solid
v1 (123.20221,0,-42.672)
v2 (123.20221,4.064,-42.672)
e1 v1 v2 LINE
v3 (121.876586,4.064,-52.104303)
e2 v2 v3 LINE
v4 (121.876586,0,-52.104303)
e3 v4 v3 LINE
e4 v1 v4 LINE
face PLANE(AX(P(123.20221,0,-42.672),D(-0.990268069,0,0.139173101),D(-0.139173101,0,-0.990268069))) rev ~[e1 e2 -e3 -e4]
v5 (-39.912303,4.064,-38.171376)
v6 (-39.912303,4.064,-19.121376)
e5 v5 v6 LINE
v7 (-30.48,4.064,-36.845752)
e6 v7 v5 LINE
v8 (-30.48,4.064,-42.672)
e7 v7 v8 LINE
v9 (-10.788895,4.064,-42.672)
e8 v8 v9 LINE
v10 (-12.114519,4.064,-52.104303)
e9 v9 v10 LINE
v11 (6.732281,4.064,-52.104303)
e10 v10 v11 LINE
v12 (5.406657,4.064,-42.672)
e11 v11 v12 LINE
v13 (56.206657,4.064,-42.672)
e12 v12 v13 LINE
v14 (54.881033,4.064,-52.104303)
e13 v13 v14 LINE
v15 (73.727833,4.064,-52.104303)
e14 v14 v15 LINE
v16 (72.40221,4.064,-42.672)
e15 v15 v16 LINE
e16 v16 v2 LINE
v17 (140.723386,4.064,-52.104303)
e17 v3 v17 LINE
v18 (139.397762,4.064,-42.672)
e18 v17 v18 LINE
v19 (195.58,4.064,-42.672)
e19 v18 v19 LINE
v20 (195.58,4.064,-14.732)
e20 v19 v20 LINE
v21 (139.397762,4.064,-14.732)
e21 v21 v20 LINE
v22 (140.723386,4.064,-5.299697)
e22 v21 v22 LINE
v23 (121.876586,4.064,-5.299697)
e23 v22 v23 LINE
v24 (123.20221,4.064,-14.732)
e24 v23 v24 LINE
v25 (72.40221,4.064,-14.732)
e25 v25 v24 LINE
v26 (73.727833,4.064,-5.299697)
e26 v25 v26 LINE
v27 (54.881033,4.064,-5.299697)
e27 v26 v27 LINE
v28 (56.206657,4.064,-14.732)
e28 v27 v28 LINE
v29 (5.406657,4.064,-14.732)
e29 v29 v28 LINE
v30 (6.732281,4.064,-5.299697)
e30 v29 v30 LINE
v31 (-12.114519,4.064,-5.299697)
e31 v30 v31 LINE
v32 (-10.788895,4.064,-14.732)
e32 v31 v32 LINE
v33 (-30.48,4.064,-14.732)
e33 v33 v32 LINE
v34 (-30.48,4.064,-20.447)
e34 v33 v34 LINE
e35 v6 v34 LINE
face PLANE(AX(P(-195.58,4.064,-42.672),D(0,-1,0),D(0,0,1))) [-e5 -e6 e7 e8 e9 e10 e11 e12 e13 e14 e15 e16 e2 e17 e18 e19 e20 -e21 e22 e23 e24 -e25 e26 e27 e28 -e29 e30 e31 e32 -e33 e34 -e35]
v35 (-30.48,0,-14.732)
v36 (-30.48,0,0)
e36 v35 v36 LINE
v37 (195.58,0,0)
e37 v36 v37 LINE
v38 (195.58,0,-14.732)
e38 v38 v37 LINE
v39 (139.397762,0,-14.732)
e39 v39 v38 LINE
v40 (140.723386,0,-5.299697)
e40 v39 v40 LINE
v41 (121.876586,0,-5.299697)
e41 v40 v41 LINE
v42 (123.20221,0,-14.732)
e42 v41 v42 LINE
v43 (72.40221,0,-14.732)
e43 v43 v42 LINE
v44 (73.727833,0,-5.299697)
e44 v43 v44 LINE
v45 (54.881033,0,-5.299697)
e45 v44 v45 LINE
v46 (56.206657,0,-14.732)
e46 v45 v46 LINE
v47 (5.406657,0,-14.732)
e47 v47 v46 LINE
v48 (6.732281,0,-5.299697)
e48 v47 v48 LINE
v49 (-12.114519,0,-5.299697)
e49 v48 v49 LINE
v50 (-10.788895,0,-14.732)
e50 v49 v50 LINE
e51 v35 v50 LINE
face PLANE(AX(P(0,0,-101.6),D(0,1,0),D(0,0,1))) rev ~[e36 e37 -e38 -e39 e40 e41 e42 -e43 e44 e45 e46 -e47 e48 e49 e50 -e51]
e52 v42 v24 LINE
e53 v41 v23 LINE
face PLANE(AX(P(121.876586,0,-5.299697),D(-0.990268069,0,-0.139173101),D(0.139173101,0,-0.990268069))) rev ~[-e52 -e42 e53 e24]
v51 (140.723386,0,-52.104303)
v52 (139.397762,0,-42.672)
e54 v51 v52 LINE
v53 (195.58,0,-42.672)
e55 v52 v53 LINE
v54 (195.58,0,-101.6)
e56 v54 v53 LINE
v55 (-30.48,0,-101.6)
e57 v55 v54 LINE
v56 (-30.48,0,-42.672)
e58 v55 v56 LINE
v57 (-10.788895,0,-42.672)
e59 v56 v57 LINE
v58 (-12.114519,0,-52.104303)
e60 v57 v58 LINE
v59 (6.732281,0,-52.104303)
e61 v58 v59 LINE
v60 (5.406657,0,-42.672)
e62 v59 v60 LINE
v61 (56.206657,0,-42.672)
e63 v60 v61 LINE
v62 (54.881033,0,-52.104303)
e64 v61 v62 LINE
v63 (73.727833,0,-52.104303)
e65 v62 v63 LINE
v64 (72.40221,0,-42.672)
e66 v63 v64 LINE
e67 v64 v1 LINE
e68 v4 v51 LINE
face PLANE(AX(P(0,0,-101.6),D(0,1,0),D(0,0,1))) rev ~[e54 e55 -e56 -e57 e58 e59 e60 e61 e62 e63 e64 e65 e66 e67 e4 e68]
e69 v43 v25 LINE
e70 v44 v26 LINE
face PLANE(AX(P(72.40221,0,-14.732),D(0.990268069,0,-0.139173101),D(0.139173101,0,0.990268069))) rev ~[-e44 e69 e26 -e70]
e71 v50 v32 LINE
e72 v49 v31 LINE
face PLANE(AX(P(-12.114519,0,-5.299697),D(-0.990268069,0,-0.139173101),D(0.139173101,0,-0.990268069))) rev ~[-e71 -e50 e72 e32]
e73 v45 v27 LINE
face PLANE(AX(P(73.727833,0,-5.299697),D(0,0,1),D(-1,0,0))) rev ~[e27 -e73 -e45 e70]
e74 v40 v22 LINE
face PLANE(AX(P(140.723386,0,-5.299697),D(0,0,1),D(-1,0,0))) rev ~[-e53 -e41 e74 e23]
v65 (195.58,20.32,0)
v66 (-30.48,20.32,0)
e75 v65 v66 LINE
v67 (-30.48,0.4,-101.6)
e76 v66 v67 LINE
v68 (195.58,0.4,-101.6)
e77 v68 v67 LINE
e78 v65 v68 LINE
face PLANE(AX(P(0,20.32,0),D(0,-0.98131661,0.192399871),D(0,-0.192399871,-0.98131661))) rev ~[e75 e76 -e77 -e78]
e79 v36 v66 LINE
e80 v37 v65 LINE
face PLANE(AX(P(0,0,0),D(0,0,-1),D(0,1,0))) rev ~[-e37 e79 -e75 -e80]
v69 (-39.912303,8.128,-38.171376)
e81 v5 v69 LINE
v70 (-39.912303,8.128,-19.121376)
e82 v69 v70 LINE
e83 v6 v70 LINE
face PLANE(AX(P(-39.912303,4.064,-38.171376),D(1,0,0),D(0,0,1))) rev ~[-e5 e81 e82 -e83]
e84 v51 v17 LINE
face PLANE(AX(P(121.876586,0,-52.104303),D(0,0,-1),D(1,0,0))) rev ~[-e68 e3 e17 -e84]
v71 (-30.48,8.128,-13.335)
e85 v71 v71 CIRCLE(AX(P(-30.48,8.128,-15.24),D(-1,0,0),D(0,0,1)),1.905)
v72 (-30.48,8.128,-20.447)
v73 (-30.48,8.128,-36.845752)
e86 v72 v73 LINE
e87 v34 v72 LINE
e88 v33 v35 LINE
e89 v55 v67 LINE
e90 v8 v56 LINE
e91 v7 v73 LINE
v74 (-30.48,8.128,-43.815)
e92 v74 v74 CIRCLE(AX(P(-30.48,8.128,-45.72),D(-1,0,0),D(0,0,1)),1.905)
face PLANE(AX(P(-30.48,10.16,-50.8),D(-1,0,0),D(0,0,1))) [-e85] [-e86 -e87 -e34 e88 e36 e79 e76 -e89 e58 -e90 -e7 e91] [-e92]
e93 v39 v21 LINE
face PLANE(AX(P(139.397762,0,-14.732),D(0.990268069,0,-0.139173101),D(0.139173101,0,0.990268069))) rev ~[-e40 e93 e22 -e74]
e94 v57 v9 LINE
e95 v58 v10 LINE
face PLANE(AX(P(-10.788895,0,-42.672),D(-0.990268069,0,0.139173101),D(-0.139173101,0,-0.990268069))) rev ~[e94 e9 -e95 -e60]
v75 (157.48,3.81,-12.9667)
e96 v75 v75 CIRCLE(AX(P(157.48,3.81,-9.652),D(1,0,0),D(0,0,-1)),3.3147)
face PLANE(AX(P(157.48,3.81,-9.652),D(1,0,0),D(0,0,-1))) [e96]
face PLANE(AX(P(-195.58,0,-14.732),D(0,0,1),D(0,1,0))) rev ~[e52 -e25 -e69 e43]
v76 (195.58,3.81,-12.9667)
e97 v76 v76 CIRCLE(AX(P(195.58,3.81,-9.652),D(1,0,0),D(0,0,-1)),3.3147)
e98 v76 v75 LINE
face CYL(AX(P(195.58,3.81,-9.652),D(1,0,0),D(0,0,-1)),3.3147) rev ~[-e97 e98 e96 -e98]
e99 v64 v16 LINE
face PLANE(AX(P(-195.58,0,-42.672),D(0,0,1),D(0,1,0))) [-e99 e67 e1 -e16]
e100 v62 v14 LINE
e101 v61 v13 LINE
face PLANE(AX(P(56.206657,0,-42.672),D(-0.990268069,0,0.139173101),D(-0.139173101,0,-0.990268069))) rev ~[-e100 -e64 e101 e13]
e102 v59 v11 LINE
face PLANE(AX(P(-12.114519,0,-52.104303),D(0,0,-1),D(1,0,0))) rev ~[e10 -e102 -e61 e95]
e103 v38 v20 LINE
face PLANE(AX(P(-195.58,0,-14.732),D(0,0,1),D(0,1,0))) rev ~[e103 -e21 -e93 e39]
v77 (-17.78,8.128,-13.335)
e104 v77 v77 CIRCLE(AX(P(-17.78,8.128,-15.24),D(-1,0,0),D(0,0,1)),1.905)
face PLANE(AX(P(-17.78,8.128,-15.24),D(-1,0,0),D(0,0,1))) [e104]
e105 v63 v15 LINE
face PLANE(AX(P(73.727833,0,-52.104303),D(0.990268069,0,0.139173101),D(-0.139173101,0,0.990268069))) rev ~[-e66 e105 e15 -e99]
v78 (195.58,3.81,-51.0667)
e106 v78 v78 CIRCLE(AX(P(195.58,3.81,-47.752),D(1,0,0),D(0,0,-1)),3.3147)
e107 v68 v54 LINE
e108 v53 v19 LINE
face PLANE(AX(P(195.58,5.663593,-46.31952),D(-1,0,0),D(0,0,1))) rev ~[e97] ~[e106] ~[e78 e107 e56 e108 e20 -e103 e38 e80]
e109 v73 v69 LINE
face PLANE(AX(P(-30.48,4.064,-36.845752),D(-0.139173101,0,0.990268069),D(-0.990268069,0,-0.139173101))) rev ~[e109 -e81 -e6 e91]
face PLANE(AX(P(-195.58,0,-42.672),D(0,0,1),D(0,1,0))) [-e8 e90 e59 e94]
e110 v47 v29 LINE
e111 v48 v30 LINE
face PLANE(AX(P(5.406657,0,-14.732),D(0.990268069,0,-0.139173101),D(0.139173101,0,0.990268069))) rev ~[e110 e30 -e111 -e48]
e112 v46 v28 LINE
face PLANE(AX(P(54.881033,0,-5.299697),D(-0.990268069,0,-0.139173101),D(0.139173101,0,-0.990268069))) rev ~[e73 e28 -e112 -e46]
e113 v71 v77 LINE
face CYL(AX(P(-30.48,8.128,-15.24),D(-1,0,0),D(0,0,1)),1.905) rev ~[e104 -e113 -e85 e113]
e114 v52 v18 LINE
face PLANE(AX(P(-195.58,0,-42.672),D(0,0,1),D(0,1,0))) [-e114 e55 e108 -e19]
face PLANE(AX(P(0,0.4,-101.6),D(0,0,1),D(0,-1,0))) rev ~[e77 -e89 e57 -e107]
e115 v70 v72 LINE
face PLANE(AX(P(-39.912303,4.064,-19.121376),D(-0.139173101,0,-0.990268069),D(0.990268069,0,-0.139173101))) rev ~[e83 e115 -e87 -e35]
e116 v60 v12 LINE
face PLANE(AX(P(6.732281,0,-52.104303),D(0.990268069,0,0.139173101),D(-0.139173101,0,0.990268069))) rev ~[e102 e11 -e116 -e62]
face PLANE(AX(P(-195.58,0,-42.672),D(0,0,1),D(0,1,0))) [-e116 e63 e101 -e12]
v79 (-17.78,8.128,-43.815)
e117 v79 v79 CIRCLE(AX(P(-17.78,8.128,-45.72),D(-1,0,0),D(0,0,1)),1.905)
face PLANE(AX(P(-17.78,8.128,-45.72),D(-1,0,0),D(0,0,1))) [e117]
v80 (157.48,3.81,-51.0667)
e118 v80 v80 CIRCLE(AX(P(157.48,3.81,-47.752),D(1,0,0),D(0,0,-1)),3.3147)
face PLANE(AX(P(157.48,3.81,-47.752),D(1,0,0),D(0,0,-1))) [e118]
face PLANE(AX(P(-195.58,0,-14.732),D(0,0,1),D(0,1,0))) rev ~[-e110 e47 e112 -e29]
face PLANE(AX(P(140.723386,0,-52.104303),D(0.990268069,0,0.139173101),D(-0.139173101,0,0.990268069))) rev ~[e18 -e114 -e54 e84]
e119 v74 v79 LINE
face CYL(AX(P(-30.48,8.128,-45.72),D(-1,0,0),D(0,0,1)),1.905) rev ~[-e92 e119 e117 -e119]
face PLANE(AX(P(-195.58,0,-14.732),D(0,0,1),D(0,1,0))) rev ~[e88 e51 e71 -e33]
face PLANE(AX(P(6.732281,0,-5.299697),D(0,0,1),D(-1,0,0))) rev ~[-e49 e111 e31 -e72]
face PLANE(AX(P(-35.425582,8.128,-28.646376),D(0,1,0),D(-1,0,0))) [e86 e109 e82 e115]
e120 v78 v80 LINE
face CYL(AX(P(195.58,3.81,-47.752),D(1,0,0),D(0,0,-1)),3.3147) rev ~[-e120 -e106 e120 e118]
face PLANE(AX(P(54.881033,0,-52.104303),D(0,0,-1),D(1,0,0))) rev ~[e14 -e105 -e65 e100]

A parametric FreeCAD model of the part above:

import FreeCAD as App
import Part
import Sketcher

V = App.Vector
Q = App.Units.Quantity


def add_polygon(sketch, points):
    """Adds a closed chain of lines whose ends are joined by coincident constraints."""
    first, n = sketch.GeometryCount, len(points)
    for a, b in zip(points, points[1:] + points[:1]):
        sketch.addGeometry(Part.LineSegment(App.Vector(*a, 0), App.Vector(*b, 0)), False)
    for i in range(n):
        sketch.addConstraint(Sketcher.Constraint("Coincident", first + i, 2, first + (i + 1) % n, 1))

doc = App.newDocument("Part")
body = doc.addObject("PartDesign::Body", "Body")

sketch1 = body.newObject("Sketcher::SketchObject", "Sketch")
sketch1.AttachmentSupport = (doc.getObject("YZ_Plane"), [""])
sketch1.MapMode = "FlatFace"
add_polygon(sketch1, [(20.32, 0), (0, 0), (0, -101.6), (0.4, -101.6)])
sketch1.addConstraint([
    Sketcher.Constraint("Horizontal", 0),
    Sketcher.Constraint("Vertical", 1),
    Sketcher.Constraint("Horizontal", 2),
    Sketcher.Constraint("Coincident", 0, 2, -1, 1),
    Sketcher.Constraint("DistanceY", 1, 2, 1, 1, Q("4 in")),
    Sketcher.Constraint("DistanceX", 0, 2, 0, 1, Q("0.8 in")),
    Sketcher.Constraint("DistanceX", 2, 1, 2, 2, 0.4),
])
pad1 = body.newObject("PartDesign::Pad", "Pad")
pad1.Profile = sketch1
pad1.Length = Q("15.4 in")
pad1.Midplane = True

sketch2 = body.newObject("Sketcher::SketchObject", "Sketch001")
sketch2.AttachmentSupport = (doc.getObject("YZ_Plane"), [""])
sketch2.MapMode = "FlatFace"
sketch2.AttachmentOffset = App.Placement(V(0, 0, 7.7 * 25.4), App.Rotation())
sketch2.addGeometry([
    Part.Circle(V(3.8, -9.7, 0), V(0, 0, 1), 3.3),
    Part.Circle(V(3.8, -47.8, 0), V(0, 0, 1), 3.3),
], False)
sketch2.addConstraint([
    Sketcher.Constraint("Equal", 0, 1),
    Sketcher.Constraint("Vertical", 0, 3, 1, 3),
    Sketcher.Constraint("Diameter", 0, Q("0.261 in")),
    Sketcher.Constraint("DistanceY", 1, 3, 0, 3, Q("1.5 in")),
    Sketcher.Constraint("DistanceX", -1, 1, 0, 3, Q("0.15 in")),
    Sketcher.Constraint("DistanceY", 0, 3, -1, 1, Q("0.38 in")),
])
pocket1 = body.newObject("PartDesign::Pocket", "Pocket")
pocket1.Profile = sketch2
pocket1.Length = Q("1.5 in")
doc.recompute()

mirrored = body.newObject("PartDesign::Mirrored", "Mirrored")
mirrored.Originals = [pocket1]
mirrored.MirrorPlane = (doc.getObject("YZ_Plane"), [""])
body.Tip = mirrored

sketch3 = body.newObject("Sketcher::SketchObject", "Sketch002")
sketch3.AttachmentSupport = (doc.getObject("YZ_Plane"), [""])
sketch3.MapMode = "FlatFace"
sketch3.AttachmentOffset = App.Placement(V(0, 0, -7.7 * 25.4), App.Rotation())
add_polygon(sketch3, [(4.1, -42.7), (0, -42.7), (0, -14.7), (4.1, -14.7)])
sketch3.addConstraint([
    Sketcher.Constraint("Horizontal", 0),
    Sketcher.Constraint("Vertical", 1),
    Sketcher.Constraint("Horizontal", 2),
    Sketcher.Constraint("Vertical", 3),
    Sketcher.Constraint("PointOnObject", 0, 2, -2),
    Sketcher.Constraint("DistanceY", 1, 1, 1, 2, Q("1.1 in")),
    Sketcher.Constraint("DistanceX", 0, 2, 0, 1, Q("0.16 in")),
    Sketcher.Constraint("DistanceY", 0, 2, -1, 1, Q("1.68 in")),
])
pocket2 = body.newObject("PartDesign::Pocket", "Pocket001")
pocket2.Profile = sketch3
pocket2.Type = "ThroughAll"
pocket2.Reversed = True

sketch4 = body.newObject("Sketcher::SketchObject", "Sketch003")
sketch4.AttachmentSupport = (doc.getObject("XZ_Plane"), [""])
sketch4.MapMode = "FlatFace"
add_polygon(sketch4, [(5, -43), (-11, -43), (-12, -52), (7, -52)])
add_polygon(sketch4, [(139, -43), (123, -43), (122, -52), (141, -52)])
add_polygon(sketch4, [(122, -5), (123, -15), (139, -15), (141, -5)])
add_polygon(sketch4, [(-12, -5), (-11, -15), (5, -15), (7, -5)])
add_polygon(sketch4, [(72, -43), (56, -43), (55, -52), (74, -52)])
add_polygon(sketch4, [(55, -5), (56, -15), (72, -15), (74, -5)])
sketch4.addConstraint([
    Sketcher.Constraint("Horizontal", 0),
    Sketcher.Constraint("Horizontal", 2),
    Sketcher.Constraint("Horizontal", 4),
    Sketcher.Constraint("Horizontal", 6),
    Sketcher.Constraint("Horizontal", 9),
    Sketcher.Constraint("Horizontal", 11),
    Sketcher.Constraint("Horizontal", 13),
    Sketcher.Constraint("Horizontal", 15),
    Sketcher.Constraint("Horizontal", 16),
    Sketcher.Constraint("Horizontal", 18),
    Sketcher.Constraint("Horizontal", 21),
    Sketcher.Constraint("Horizontal", 23),
    Sketcher.Constraint("Parallel", 1, 5),
    Sketcher.Constraint("Parallel", 3, 7),
    Sketcher.Constraint("Parallel", 7, 8),
    Sketcher.Constraint("Parallel", 5, 10),
    Sketcher.Constraint("Parallel", 8, 12),
    Sketcher.Constraint("Parallel", 10, 14),
    Sketcher.Constraint("Parallel", 14, 17),
    Sketcher.Constraint("Parallel", 12, 19),
    Sketcher.Constraint("Parallel", 19, 20),
    Sketcher.Constraint("Parallel", 17, 22),
    Sketcher.Constraint("Horizontal", 3, 2, 4, 2),
    Sketcher.Constraint("Horizontal", 2, 2, 5, 2),
    Sketcher.Constraint("Horizontal", 9, 2, 12, 2),
    Sketcher.Constraint("Horizontal", 11, 2, 14, 2),
    Sketcher.Constraint("Horizontal", 7, 2, 16, 2),
    Sketcher.Constraint("Horizontal", 6, 2, 17, 2),
    Sketcher.Constraint("Horizontal", 13, 2, 20, 2),
    Sketcher.Constraint("Horizontal", 15, 2, 22, 2),
    Sketcher.Constraint("Vertical", 4, 2, 8, 2),
    Sketcher.Constraint("Vertical", 7, 2, 9, 2),
    Sketcher.Constraint("Vertical", 6, 2, 10, 2),
    Sketcher.Constraint("Vertical", 5, 2, 11, 2),
    Sketcher.Constraint("Vertical", 0, 2, 12, 2),
    Sketcher.Constraint("Vertical", 3, 2, 13, 2),
    Sketcher.Constraint("Vertical", 16, 2, 20, 2),
    Sketcher.Constraint("Vertical", 19, 2, 21, 2),
    Sketcher.Constraint("Equal", 0, 4),
    Sketcher.Constraint("Equal", 13, 16),
    Sketcher.Constraint("Angle", 1, Q("-98 deg")),
    Sketcher.Constraint("DistanceX", 3, 2, 16, 2, Q("2 in")),
    Sketcher.Constraint("DistanceX", 19, 2, 4, 2, Q("2 in")),
    Sketcher.Constraint("DistanceY", 4, 2, 8, 2, Q("1.1 in")),
    Sketcher.Constraint("DistanceX", 2, 1, 2, 2, Q("0.742 in")),
    Sketcher.Constraint("DistanceY", 0, 2, -1, 1, Q("1.68 in")),
    Sketcher.Constraint("Distance", 1, Q("0.375 in")),
    Sketcher.Constraint("DistanceX", 1, 2, -1, 1, 12.114519),
])
pocket3 = body.newObject("PartDesign::Pocket", "Pocket002")
pocket3.Profile = sketch4
pocket3.Length = Q("0.16 in")

sketch5 = body.newObject("Sketcher::SketchObject", "Sketch004")
sketch5.AttachmentSupport = (doc.getObject("YZ_Plane"), [""])
sketch5.MapMode = "FlatFace"
sketch5.AttachmentOffset = App.Placement(V(0, 0, -7.7 * 25.4), App.Rotation())
add_polygon(sketch5, [(20, -102), (0, -102), (0, 0), (20, 0)])
sketch5.addConstraint([
    Sketcher.Constraint("Horizontal", 0),
    Sketcher.Constraint("Vertical", 1),
    Sketcher.Constraint("Horizontal", 2),
    Sketcher.Constraint("Vertical", 3),
    Sketcher.Constraint("Coincident", 1, 2, -1, 1),
    Sketcher.Constraint("DistanceY", 1, 1, 1, 2, Q("4 in")),
    Sketcher.Constraint("DistanceX", 0, 2, 0, 1, Q("0.8 in")),
])
pocket4 = body.newObject("PartDesign::Pocket", "Pocket003")
pocket4.Profile = sketch5
pocket4.Length = Q("6.5 in")
pocket4.Reversed = True

sketch6 = body.newObject("Sketcher::SketchObject", "Sketch005")
sketch6.AttachmentSupport = (doc.getObject("XZ_Plane"), [""])
sketch6.MapMode = "FlatFace"
sketch6.AttachmentOffset = App.Placement(V(0, 0, -0.16 * 25.4), App.Rotation())
add_polygon(sketch6, [(-30, -37), (-30, -20), (-40, -19), (-40, -38)])
sketch6.addConstraint([
    Sketcher.Constraint("Vertical", 0),
    Sketcher.Constraint("Vertical", 2),
    Sketcher.Constraint("Equal", 1, 3),
    Sketcher.Constraint("Angle", 1, Q("172 deg")),
    Sketcher.Constraint("DistanceY", 2, 2, 2, 1, Q("0.75 in")),
    Sketcher.Constraint("DistanceX", 0, 2, -1, 1, Q("1.2 in")),
    Sketcher.Constraint("Distance", 1, Q("0.375 in")),
    Sketcher.Constraint("DistanceY", 0, 2, -1, 1, Q("0.805 in")),
])
pad2 = body.newObject("PartDesign::Pad", "Pad001")
pad2.Profile = sketch6
pad2.Length = Q("0.16 in")
pad2.Reversed = True

sketch7 = body.newObject("Sketcher::SketchObject", "Sketch006")
sketch7.AttachmentSupport = (doc.getObject("YZ_Plane"), [""])
sketch7.MapMode = "FlatFace"
sketch7.AttachmentOffset = App.Placement(V(0, 0, -1.2 * 25.4), App.Rotation())
sketch7.addGeometry([
    Part.Circle(V(8.1, -15.2, 0), V(0, 0, 1), 1.9),
    Part.Circle(V(8.1, -45.7, 0), V(0, 0, 1), 1.9),
], False)
sketch7.addConstraint([
    Sketcher.Constraint("Equal", 0, 1),
    Sketcher.Constraint("Vertical", 0, 3, 1, 3),
    Sketcher.Constraint("Diameter", 0, Q("0.15 in")),
    Sketcher.Constraint("DistanceY", 0, 3, -1, 1, Q("0.6 in")),
    Sketcher.Constraint("DistanceY", 1, 3, -1, 1, Q("1.8 in")),
    Sketcher.Constraint("DistanceX", -1, 1, 0, 3, Q("0.32 in")),
])
pocket5 = body.newObject("PartDesign::Pocket", "Pocket004")
pocket5.Profile = sketch7
pocket5.Length = Q("0.5 in")
pocket5.Reversed = True

doc.recompute()
